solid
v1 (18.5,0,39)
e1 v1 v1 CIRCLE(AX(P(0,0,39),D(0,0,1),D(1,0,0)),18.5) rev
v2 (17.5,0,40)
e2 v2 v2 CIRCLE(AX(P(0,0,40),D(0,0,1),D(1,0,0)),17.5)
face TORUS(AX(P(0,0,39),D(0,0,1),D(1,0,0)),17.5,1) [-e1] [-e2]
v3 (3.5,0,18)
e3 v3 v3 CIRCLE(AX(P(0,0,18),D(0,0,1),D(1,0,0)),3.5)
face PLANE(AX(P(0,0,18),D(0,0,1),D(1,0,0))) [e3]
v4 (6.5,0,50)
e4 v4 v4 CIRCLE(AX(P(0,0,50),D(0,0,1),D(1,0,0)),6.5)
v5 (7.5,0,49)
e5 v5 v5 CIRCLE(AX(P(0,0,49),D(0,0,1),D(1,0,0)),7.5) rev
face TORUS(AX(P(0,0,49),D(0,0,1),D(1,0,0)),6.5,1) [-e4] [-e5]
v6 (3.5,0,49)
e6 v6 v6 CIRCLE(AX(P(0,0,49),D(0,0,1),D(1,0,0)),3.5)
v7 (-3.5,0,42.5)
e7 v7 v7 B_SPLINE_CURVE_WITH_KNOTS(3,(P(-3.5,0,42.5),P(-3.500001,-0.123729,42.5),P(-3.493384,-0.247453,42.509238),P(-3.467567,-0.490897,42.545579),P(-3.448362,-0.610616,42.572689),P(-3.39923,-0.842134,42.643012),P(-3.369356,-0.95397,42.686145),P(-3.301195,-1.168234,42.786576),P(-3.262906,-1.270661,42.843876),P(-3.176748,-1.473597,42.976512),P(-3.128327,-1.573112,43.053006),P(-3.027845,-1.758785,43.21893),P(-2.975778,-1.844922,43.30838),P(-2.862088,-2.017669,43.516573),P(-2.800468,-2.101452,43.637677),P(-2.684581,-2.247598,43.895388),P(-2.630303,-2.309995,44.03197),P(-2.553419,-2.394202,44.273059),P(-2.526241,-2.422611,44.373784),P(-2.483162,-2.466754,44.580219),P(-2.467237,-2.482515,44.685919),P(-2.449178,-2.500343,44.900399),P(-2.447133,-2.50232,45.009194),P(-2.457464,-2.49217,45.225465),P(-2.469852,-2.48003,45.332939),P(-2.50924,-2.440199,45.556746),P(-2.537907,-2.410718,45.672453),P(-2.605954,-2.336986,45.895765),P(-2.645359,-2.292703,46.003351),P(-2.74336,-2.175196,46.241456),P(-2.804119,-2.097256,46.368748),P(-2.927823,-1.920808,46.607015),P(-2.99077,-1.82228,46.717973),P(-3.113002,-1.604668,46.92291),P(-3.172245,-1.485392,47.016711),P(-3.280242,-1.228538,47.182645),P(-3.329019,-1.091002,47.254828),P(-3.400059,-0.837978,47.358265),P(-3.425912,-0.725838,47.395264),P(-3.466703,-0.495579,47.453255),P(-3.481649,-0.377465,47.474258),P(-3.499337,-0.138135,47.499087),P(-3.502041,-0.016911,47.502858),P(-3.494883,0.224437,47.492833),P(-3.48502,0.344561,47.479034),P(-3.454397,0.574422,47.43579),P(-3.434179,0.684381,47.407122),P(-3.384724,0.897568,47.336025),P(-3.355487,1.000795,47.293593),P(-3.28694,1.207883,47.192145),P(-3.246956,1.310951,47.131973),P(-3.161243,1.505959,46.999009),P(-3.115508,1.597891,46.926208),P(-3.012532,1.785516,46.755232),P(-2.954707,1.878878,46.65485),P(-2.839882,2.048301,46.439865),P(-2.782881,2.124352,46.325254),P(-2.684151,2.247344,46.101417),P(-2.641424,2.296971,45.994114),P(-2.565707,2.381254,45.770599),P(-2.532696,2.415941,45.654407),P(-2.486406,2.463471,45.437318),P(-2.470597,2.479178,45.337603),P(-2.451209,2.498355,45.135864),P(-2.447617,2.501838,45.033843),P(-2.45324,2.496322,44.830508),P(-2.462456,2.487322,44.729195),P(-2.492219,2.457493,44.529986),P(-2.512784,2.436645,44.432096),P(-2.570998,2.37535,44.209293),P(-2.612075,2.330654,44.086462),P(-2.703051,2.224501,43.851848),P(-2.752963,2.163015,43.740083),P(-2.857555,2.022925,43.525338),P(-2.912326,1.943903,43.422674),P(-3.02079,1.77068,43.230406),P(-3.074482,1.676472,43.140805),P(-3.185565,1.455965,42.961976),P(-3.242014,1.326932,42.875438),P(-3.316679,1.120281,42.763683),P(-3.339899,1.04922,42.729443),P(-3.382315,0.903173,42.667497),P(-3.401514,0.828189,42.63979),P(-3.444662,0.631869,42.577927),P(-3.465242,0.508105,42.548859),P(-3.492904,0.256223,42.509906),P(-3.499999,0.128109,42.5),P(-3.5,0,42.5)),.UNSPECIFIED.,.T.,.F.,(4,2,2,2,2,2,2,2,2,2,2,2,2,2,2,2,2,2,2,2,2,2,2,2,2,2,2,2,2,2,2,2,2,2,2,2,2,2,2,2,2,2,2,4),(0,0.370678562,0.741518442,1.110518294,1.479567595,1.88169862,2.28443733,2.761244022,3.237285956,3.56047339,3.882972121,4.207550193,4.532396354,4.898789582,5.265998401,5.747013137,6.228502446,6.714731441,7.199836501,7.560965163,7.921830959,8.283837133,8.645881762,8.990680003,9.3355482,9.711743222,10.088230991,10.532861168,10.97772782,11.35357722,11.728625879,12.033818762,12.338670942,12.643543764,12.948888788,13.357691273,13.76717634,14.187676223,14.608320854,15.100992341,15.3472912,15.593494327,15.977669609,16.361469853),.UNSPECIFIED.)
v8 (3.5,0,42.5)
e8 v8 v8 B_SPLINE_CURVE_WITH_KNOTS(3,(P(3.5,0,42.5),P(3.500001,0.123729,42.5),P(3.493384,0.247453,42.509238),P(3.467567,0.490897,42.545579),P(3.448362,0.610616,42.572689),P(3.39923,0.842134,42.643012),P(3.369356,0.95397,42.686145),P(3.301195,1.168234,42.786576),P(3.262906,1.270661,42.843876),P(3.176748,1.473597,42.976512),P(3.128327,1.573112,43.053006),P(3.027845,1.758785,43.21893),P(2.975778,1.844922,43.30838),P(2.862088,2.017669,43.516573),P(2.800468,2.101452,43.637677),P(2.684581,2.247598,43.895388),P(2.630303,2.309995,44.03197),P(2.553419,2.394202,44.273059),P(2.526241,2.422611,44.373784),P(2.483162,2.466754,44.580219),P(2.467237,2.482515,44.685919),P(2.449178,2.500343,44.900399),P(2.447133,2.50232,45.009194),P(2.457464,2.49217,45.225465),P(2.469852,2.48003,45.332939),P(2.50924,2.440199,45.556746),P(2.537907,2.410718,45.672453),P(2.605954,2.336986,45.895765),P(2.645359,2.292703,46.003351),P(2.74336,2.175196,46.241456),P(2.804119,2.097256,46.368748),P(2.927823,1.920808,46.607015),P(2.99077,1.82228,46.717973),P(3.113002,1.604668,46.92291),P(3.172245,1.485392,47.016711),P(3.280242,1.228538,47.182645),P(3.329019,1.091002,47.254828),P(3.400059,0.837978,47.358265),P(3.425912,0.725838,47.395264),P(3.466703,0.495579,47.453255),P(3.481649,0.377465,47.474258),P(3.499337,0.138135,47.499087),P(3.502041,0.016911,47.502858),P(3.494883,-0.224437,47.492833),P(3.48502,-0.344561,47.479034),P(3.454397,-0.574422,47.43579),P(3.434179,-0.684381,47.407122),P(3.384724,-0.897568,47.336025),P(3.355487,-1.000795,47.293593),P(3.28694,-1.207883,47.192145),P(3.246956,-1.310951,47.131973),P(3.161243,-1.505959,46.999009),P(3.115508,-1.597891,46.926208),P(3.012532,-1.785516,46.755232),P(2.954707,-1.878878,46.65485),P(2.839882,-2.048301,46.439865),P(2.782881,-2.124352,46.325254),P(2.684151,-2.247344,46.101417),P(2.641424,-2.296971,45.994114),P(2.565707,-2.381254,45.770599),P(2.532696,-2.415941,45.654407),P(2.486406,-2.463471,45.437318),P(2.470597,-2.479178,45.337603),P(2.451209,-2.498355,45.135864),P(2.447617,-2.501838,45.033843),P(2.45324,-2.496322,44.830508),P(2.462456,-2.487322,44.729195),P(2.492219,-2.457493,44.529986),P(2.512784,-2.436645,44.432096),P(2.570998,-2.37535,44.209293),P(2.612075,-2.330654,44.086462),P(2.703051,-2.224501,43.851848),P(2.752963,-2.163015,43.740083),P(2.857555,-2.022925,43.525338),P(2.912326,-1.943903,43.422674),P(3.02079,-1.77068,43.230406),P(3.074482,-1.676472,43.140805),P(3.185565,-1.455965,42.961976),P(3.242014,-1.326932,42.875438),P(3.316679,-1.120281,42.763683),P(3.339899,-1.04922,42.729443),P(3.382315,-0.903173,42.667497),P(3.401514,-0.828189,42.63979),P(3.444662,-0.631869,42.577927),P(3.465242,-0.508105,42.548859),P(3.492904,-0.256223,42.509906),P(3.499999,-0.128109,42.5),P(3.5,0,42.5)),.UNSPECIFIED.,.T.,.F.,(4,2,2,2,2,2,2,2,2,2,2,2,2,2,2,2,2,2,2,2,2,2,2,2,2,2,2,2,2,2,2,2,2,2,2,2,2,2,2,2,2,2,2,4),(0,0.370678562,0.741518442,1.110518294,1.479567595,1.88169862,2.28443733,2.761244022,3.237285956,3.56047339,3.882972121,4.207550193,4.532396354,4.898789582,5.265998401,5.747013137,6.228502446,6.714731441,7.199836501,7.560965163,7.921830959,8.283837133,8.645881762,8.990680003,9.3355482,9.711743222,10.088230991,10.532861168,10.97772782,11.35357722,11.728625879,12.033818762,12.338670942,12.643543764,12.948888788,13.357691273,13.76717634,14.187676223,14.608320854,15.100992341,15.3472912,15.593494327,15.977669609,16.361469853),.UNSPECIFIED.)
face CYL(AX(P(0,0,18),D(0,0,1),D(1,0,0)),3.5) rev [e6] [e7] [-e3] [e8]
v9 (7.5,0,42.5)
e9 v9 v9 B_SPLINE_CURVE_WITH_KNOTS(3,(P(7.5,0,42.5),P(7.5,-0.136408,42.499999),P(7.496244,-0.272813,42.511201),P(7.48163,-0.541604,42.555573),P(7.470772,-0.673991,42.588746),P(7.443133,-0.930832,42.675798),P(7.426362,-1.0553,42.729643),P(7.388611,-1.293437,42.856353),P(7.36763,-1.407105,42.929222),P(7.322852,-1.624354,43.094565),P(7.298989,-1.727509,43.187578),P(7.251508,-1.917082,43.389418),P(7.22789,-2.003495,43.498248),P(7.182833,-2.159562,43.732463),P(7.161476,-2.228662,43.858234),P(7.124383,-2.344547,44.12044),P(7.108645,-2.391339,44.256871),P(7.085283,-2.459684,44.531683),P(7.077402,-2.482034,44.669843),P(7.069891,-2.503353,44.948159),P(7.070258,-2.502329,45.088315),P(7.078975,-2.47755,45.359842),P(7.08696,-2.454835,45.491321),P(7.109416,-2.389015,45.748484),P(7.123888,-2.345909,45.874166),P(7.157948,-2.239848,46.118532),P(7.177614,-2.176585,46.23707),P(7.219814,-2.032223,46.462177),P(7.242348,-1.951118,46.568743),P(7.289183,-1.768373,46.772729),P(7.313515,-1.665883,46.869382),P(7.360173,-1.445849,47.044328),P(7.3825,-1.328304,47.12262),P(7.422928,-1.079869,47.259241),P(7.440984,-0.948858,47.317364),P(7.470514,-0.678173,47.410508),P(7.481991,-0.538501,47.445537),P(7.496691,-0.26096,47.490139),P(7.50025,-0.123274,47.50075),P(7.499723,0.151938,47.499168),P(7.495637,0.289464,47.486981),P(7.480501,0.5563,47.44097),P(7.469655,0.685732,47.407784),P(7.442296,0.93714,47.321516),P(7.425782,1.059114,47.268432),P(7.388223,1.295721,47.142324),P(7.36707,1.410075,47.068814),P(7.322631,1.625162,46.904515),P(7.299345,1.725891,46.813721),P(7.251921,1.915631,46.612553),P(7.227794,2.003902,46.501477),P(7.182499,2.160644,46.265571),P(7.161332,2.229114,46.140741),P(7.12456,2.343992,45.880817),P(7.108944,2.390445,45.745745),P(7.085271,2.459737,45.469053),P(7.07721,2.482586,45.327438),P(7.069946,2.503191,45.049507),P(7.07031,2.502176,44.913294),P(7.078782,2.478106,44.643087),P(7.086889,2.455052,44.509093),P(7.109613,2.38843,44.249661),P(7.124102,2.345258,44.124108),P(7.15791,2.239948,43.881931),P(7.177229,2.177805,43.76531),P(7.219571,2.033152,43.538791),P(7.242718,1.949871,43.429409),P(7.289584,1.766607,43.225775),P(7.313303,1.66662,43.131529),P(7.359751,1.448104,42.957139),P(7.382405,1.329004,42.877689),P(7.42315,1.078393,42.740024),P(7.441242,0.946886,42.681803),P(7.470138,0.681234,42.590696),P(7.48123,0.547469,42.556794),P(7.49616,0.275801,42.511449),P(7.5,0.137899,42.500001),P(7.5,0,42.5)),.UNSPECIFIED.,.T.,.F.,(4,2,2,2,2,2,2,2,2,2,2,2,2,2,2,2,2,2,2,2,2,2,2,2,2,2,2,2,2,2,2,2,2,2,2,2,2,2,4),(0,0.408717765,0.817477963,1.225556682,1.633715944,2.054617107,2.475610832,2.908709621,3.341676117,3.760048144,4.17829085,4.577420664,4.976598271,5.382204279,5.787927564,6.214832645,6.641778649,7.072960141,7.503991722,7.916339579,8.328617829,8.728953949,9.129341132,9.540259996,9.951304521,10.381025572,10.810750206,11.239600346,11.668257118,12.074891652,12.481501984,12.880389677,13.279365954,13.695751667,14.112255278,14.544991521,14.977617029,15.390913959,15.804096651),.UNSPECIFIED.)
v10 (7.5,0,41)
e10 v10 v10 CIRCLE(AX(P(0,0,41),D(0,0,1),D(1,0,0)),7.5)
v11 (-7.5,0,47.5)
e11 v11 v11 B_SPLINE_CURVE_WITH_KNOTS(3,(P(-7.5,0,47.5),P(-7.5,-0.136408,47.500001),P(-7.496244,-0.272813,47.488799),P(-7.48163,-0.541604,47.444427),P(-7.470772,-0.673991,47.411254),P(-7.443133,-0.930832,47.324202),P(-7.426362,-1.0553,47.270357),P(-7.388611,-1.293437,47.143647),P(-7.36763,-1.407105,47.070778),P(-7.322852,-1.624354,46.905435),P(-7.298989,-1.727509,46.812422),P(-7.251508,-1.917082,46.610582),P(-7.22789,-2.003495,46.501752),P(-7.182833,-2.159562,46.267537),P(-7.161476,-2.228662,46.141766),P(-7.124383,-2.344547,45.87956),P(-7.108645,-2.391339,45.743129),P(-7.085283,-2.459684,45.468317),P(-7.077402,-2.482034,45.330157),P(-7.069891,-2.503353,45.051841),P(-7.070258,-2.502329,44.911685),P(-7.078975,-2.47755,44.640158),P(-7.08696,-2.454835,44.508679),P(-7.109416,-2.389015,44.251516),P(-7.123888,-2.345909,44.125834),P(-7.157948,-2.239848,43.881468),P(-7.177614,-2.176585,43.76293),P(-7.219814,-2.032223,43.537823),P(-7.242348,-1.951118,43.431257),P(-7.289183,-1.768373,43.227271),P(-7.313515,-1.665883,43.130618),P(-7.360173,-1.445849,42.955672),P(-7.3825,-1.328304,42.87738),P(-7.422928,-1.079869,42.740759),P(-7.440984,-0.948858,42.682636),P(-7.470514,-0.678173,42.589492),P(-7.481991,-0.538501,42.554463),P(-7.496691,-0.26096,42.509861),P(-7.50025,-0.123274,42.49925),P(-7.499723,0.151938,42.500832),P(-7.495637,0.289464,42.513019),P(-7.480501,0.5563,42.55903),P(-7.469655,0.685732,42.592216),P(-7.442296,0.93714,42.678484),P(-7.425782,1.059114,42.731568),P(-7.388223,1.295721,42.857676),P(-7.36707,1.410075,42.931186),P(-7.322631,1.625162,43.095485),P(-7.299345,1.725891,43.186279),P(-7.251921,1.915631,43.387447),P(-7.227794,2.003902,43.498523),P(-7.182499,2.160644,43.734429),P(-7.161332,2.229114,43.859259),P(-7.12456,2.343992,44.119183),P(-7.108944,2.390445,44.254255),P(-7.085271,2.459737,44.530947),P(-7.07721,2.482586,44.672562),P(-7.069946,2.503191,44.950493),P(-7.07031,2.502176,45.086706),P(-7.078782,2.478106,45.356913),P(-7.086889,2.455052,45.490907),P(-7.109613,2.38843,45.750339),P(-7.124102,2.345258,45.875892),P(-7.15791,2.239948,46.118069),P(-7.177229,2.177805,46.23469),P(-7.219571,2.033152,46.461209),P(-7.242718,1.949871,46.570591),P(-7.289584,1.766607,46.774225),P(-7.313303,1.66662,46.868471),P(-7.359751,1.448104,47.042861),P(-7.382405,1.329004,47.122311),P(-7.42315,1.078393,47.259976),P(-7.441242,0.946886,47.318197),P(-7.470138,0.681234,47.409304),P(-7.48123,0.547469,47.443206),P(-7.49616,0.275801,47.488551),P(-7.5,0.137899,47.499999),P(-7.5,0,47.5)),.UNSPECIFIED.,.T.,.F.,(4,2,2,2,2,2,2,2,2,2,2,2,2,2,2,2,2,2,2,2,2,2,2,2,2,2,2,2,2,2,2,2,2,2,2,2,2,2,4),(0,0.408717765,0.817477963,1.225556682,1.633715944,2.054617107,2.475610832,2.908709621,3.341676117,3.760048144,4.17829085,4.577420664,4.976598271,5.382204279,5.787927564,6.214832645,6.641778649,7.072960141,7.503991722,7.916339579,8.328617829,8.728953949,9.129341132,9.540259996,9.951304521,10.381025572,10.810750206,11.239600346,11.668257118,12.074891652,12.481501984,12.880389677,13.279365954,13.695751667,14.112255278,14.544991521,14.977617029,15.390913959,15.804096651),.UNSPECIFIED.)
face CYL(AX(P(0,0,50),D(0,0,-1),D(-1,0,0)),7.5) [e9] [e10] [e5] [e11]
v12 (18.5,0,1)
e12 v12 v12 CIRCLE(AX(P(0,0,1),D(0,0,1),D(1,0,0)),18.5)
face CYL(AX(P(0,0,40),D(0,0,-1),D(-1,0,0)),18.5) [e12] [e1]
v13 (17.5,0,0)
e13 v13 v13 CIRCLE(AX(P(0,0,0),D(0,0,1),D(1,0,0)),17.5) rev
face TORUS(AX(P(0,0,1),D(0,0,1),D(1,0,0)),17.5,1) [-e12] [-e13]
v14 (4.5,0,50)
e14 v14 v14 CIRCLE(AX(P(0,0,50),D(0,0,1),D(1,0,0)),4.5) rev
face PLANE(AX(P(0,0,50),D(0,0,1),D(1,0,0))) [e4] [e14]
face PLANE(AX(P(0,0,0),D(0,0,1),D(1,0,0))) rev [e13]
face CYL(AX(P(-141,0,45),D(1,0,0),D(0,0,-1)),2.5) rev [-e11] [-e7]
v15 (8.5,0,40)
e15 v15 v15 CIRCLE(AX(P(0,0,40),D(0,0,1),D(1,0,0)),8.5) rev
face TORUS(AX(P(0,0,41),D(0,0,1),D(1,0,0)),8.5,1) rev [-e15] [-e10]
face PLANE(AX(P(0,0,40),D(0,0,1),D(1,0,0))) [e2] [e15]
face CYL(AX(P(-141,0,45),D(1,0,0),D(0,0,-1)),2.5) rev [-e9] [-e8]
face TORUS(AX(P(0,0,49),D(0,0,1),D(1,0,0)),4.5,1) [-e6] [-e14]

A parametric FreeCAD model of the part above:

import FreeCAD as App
import Part
import Sketcher
from FreeCAD import Vector


def edges_at(feature, points):
    """Names of the edges that pass closest to the given points."""
    edges = feature.Shape.Edges
    near = lambda p: min(range(len(edges)), key=lambda i: edges[i].distToShape(Part.Vertex(*p))[0])
    return sorted({f"Edge{near(p) + 1}" for p in points})

doc = App.newDocument("Part")
body = doc.addObject("PartDesign::Body", "Body")

sketch1 = body.newObject("Sketcher::SketchObject", "Sketch")
sketch1.AttachmentSupport = (doc.getObject("XY_Plane"), [""])
sketch1.MapMode = "FlatFace"
sketch1.addGeometry(Part.Circle(Vector(0, 0, 0), Vector(0, 0, 1), 18), False)
sketch1.addConstraint([
    Sketcher.Constraint("Coincident", 0, 3, -1, 1),
    Sketcher.Constraint("Diameter", 0, 37.0),
])
pad1 = body.newObject("PartDesign::Pad", "Pad")
pad1.Profile = sketch1
pad1.Length = 40

sketch2 = body.newObject("Sketcher::SketchObject", "Sketch001")
sketch2.AttachmentSupport = (doc.getObject("XY_Plane"), [""])
sketch2.MapMode = "FlatFace"
sketch2.AttachmentOffset = App.Placement(Vector(0, 0, 40), App.Rotation())
sketch2.addGeometry(Part.Circle(Vector(0, 0, 0), Vector(0, 0, 1), 8), False)
sketch2.addConstraint([
    Sketcher.Constraint("Coincident", 0, 3, -1, 1),
    Sketcher.Constraint("Diameter", 0, 15.0),
])
pad2 = body.newObject("PartDesign::Pad", "Pad001")
pad2.Profile = sketch2
pad2.Length = 10

sketch3 = body.newObject("Sketcher::SketchObject", "Sketch002")
sketch3.AttachmentSupport = (doc.getObject("XY_Plane"), [""])
sketch3.MapMode = "FlatFace"
sketch3.AttachmentOffset = App.Placement(Vector(0, 0, 50), App.Rotation())
sketch3.addGeometry(Part.Circle(Vector(0, 0, 0), Vector(0, 0, 1), 3.5), False)
sketch3.addConstraint([
    Sketcher.Constraint("Coincident", 0, 3, -1, 1),
    Sketcher.Constraint("Diameter", 0, 7.0),
])
pocket1 = body.newObject("PartDesign::Pocket", "Pocket")
pocket1.Profile = sketch3
pocket1.Length = 32
doc.recompute()

fillet = body.newObject("PartDesign::Fillet", "Fillet")
fillet.Base = (pocket1, edges_at(pocket1, [(-7.5, 0, 50)]))
fillet.Radius = 1
doc.recompute()

fillet2 = body.newObject("PartDesign::Fillet", "Fillet001")
fillet2.Base = (fillet, edges_at(fillet, [(-18.5, 0, 40)]))
fillet2.Radius = 1
doc.recompute()

fillet3 = body.newObject("PartDesign::Fillet", "Fillet002")
fillet3.Base = (fillet2, edges_at(fillet2, [(-7.5, 0, 40)]))
fillet3.Radius = 1
doc.recompute()

fillet4 = body.newObject("PartDesign::Fillet", "Fillet003")
fillet4.Base = (fillet3, edges_at(fillet3, [(-18.5, 0, 0)]))
fillet4.Radius = 1
doc.recompute()

fillet5 = body.newObject("PartDesign::Fillet", "Fillet004")
fillet5.Base = (fillet4, edges_at(fillet4, [(-3.5, 0, 50)]))
fillet5.Radius = 1

sketch4 = body.newObject("Sketcher::SketchObject", "Sketch003")
sketch4.AttachmentSupport = (doc.getObject("YZ_Plane"), [""])
sketch4.MapMode = "FlatFace"
sketch4.addGeometry(Part.Circle(Vector(0, 45, 0), Vector(0, 0, 1), 2.5), False)
sketch4.addConstraint([
    Sketcher.Constraint("PointOnObject", 0, 3, -2),
    Sketcher.Constraint("Diameter", 0, 5.0),
    Sketcher.Constraint("DistanceY", -1, 1, 0, 3, 45.0),
])
pocket2 = body.newObject("PartDesign::Pocket", "Pocket001")
pocket2.Profile = sketch4
pocket2.Length = 282
pocket2.Midplane = True

doc.recompute()
